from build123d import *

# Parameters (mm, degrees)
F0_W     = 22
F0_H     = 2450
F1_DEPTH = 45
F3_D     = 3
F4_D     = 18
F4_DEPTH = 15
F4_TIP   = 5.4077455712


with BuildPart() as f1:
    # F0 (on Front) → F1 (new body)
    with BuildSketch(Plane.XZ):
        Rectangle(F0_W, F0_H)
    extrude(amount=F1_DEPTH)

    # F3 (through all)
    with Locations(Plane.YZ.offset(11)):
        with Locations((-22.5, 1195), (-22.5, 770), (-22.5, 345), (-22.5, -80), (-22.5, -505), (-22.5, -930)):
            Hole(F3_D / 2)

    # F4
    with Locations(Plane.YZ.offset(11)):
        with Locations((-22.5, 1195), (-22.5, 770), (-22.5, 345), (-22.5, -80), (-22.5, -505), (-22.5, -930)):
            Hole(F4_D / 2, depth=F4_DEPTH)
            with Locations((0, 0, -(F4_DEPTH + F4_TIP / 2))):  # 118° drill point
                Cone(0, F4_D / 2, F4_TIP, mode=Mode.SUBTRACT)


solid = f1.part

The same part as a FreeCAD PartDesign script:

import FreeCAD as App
import Part
import Sketcher

V = App.Vector
Q = App.Units.Quantity


def add_polygon(sketch, points):
    """Adds a closed chain of lines whose ends are joined by coincident constraints."""
    first, n = sketch.GeometryCount, len(points)
    for a, b in zip(points, points[1:] + points[:1]):
        sketch.addGeometry(Part.LineSegment(App.Vector(*a, 0), App.Vector(*b, 0)), False)
    for i in range(n):
        sketch.addConstraint(Sketcher.Constraint("Coincident", first + i, 2, first + (i + 1) % n, 1))

doc = App.newDocument("Part")
params = doc.addObject("Spreadsheet::Sheet", "Params")
for row, (alias, value) in enumerate([
    ("sketch1_width", "22 mm"),
    ("sketch1_height", "2450 mm"),
    ("pad1_length", "45 mm"),
    ("sketch2_diameter", "3 mm"),
    ("hole_diameter", "3 mm"),
    ("sketch3_diameter", "18 mm"),
    ("hole2_diameter", "18 mm"),
    ("hole2_depth", "15 mm"),
], start=1):
    params.set(f"A{row}", alias)
    params.set(f"B{row}", "=" + value)
    params.setAlias(f"B{row}", alias)

body = doc.addObject("PartDesign::Body", "Body")

# Sketch on XZ plane
sketch1 = body.newObject("Sketcher::SketchObject", "Sketch")
sketch1.AttachmentSupport = (doc.getObject("XZ_Plane"), [""])
sketch1.MapMode = "FlatFace"
add_polygon(sketch1, [(-11, 1225), (-11, -1225), (11, -1225), (11, 1225)])  # lines 0-3
sketch1.addConstraint([
    Sketcher.Constraint("Vertical", 0),
    Sketcher.Constraint("Horizontal", 1),
    Sketcher.Constraint("Vertical", 2),
    Sketcher.Constraint("Horizontal", 3),
    Sketcher.Constraint("Symmetric", 0, 2, 2, 2, -1, 1),
    Sketcher.Constraint("DistanceX", 1, 1, 1, 2, Q("22 mm")),
    Sketcher.Constraint("DistanceY", 0, 2, 0, 1, Q("2450 mm")),
])
sketch1.setExpression("Constraints[9]", "Params.sketch1_width")
sketch1.setExpression("Constraints[10]", "Params.sketch1_height")
pad1 = body.newObject("PartDesign::Pad", "Pad")
pad1.Profile = sketch1
pad1.setExpression("Length", "Params.pad1_length")

# Sketch on YZ plane
sketch2 = body.newObject("Sketcher::SketchObject", "Sketch001")
sketch2.AttachmentSupport = (doc.getObject("YZ_Plane"), [""])
sketch2.MapMode = "FlatFace"
sketch2.AttachmentOffset = App.Placement(V(0, 0, 11), App.Rotation())
sketch2.addGeometry([
    Part.Circle(V(-22.5, 1195, 0), V(0, 0, 1), 1.5),  # 0
    Part.Circle(V(-22.5, 770, 0), V(0, 0, 1), 1.5),  # 1
    Part.Circle(V(-22.5, 345, 0), V(0, 0, 1), 1.5),  # 2
    Part.Circle(V(-22.5, -80, 0), V(0, 0, 1), 1.5),  # 3
    Part.Circle(V(-22.5, -505, 0), V(0, 0, 1), 1.5),  # 4
    Part.Circle(V(-22.5, -930, 0), V(0, 0, 1), 1.5),  # 5
], False)
sketch2.addConstraint([
    Sketcher.Constraint("Equal", 0, 1),
    Sketcher.Constraint("Equal", 1, 2),
    Sketcher.Constraint("Equal", 2, 3),
    Sketcher.Constraint("Equal", 3, 4),
    Sketcher.Constraint("Equal", 4, 5),
    Sketcher.Constraint("Vertical", 0, 3, 1, 3),
    Sketcher.Constraint("Vertical", 1, 3, 2, 3),
    Sketcher.Constraint("Vertical", 2, 3, 3, 3),
    Sketcher.Constraint("Vertical", 3, 3, 4, 3),
    Sketcher.Constraint("Vertical", 4, 3, 5, 3),
    Sketcher.Constraint("Diameter", 0, Q("3 mm")),
    Sketcher.Constraint("DistanceY", -1, 1, 0, 3, Q("1195 mm")),
    Sketcher.Constraint("DistanceY", -1, 1, 1, 3, Q("770 mm")),
    Sketcher.Constraint("DistanceY", -1, 1, 2, 3, Q("345 mm")),
    Sketcher.Constraint("DistanceY", 3, 3, -1, 1, Q("80 mm")),
    Sketcher.Constraint("DistanceY", 4, 3, -1, 1, Q("505 mm")),
    Sketcher.Constraint("DistanceY", 5, 3, -1, 1, Q("930 mm")),
    Sketcher.Constraint("DistanceX", 0, 3, -1, 1, Q("22.5 mm")),
])
sketch2.setExpression("Constraints[10]", "Params.sketch2_diameter")
doc.recompute()
hole = body.newObject("PartDesign::Hole", "Hole")
hole.Profile = sketch2
hole.ThreadType = "None"
hole.setExpression("Diameter", "Params.hole_diameter")
hole.DepthType = "ThroughAll"

# Sketch on YZ plane
sketch3 = body.newObject("Sketcher::SketchObject", "Sketch002")
sketch3.AttachmentSupport = (doc.getObject("YZ_Plane"), [""])
sketch3.MapMode = "FlatFace"
sketch3.AttachmentOffset = App.Placement(V(0, 0, 11), App.Rotation())
sketch3.addGeometry([
    Part.Circle(V(-22, 1195, 0), V(0, 0, 1), 9),  # 0
    Part.Circle(V(-22, 770, 0), V(0, 0, 1), 9),  # 1
    Part.Circle(V(-22, 345, 0), V(0, 0, 1), 9),  # 2
    Part.Circle(V(-22, -80, 0), V(0, 0, 1), 9),  # 3
    Part.Circle(V(-22, -505, 0), V(0, 0, 1), 9),  # 4
    Part.Circle(V(-22, -930, 0), V(0, 0, 1), 9),  # 5
], False)
sketch3.addConstraint([
    Sketcher.Constraint("Equal", 0, 1),
    Sketcher.Constraint("Equal", 1, 2),
    Sketcher.Constraint("Equal", 2, 3),
    Sketcher.Constraint("Equal", 3, 4),
    Sketcher.Constraint("Equal", 4, 5),
    Sketcher.Constraint("Vertical", 0, 3, 1, 3),
    Sketcher.Constraint("Vertical", 1, 3, 2, 3),
    Sketcher.Constraint("Vertical", 2, 3, 3, 3),
    Sketcher.Constraint("Vertical", 3, 3, 4, 3),
    Sketcher.Constraint("Vertical", 4, 3, 5, 3),
    Sketcher.Constraint("Diameter", 0, Q("18 mm")),
    Sketcher.Constraint("DistanceY", -1, 1, 0, 3, Q("1195 mm")),
    Sketcher.Constraint("DistanceY", -1, 1, 1, 3, Q("770 mm")),
    Sketcher.Constraint("DistanceY", -1, 1, 2, 3, Q("345 mm")),
    Sketcher.Constraint("DistanceY", 3, 3, -1, 1, Q("80 mm")),
    Sketcher.Constraint("DistanceY", 4, 3, -1, 1, Q("505 mm")),
    Sketcher.Constraint("DistanceY", 5, 3, -1, 1, Q("930 mm")),
    Sketcher.Constraint("DistanceX", 0, 3, -1, 1, Q("22.5 mm")),
])
sketch3.setExpression("Constraints[10]", "Params.sketch3_diameter")
doc.recompute()
hole2 = body.newObject("PartDesign::Hole", "Hole001")
hole2.Profile = sketch3
hole2.ThreadType = "None"
hole2.setExpression("Diameter", "Params.hole2_diameter")
hole2.DepthType = "Dimension"
hole2.setExpression("Depth", "Params.hole2_depth")
hole2.DrillPoint = "Angled"
hole2.DrillPointAngle = 118

doc.recompute()
